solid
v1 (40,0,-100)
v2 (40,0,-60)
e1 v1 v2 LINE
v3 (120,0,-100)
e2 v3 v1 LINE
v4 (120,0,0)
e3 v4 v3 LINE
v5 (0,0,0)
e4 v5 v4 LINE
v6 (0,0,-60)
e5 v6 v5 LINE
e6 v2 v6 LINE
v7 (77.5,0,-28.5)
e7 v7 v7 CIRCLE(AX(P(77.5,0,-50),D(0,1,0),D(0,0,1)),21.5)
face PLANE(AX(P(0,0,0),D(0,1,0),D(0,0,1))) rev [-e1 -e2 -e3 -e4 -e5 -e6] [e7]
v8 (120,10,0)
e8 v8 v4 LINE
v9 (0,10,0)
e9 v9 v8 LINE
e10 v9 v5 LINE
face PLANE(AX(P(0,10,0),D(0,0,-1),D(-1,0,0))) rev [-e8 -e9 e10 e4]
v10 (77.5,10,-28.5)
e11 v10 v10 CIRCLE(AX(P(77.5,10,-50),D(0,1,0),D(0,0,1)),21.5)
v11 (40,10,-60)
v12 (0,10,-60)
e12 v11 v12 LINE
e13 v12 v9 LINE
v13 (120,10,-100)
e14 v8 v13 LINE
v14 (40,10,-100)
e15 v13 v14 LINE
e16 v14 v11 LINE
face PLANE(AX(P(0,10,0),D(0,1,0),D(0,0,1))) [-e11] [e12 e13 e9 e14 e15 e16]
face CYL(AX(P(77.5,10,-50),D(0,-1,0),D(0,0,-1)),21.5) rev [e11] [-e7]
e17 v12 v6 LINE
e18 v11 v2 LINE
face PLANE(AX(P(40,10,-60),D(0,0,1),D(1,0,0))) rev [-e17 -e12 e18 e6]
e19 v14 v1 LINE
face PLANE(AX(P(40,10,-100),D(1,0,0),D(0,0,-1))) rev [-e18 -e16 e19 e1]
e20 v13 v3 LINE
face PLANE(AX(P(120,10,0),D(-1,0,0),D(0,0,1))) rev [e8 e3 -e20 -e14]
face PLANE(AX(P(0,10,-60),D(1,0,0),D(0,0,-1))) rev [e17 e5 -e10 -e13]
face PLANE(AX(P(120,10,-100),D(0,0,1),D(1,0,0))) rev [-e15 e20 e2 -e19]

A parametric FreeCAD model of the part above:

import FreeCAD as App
import Part
import Sketcher


def add_polygon(sketch, points):
    """Adds a closed chain of lines whose ends are joined by coincident constraints."""
    first, n = sketch.GeometryCount, len(points)
    for a, b in zip(points, points[1:] + points[:1]):
        sketch.addGeometry(Part.LineSegment(App.Vector(*a, 0), App.Vector(*b, 0)), False)
    for i in range(n):
        sketch.addConstraint(Sketcher.Constraint("Coincident", first + i, 2, first + (i + 1) % n, 1))

doc = App.newDocument("Part")
body = doc.addObject("PartDesign::Body", "Body")

# Sketch on XZ plane
sketch1 = body.newObject("Sketcher::SketchObject", "Sketch")
sketch1.AttachmentSupport = (doc.getObject("XZ_Plane"), [""])
sketch1.MapMode = "FlatFace"
add_polygon(sketch1, [(0, 0), (120, 0), (120, -100), (40, -100), (40, -60), (0, -60)])  # lines 0-5
sketch1.addGeometry(Part.Circle(App.Vector(78, -50, 0), App.Vector(0, 0, 1), 22), False)  # 6
sketch1.addConstraint(Sketcher.Constraint("Horizontal", 0))
sketch1.addConstraint(Sketcher.Constraint("Vertical", 1))
sketch1.addConstraint(Sketcher.Constraint("Horizontal", 2))
sketch1.addConstraint(Sketcher.Constraint("Vertical", 3))
sketch1.addConstraint(Sketcher.Constraint("Horizontal", 4))
sketch1.addConstraint(Sketcher.Constraint("Vertical", 5))
sketch1.addConstraint(Sketcher.Constraint("Coincident", 5, 2, -1, 1))
sketch1.addConstraint(Sketcher.Constraint("Equal", 4, 3))
sketch1.addConstraint(Sketcher.Constraint("Diameter", 6, 43.0))
sketch1.addConstraint(Sketcher.Constraint("DistanceX", 0, 1, 0, 2, 120.0))
sketch1.addConstraint(Sketcher.Constraint("DistanceX", 2, 2, 2, 1, 80.0))
sketch1.addConstraint(Sketcher.Constraint("DistanceY", 1, 2, 1, 1, 100.0))
sketch1.addConstraint(Sketcher.Constraint("DistanceY", 6, 3, -1, 1, 50.0))
sketch1.addConstraint(Sketcher.Constraint("DistanceX", -1, 1, 6, 3, 77.5))
pad1 = body.newObject("PartDesign::Pad", "Pad")
pad1.Profile = sketch1
pad1.Length = 10
pad1.Reversed = True

doc.recompute()
